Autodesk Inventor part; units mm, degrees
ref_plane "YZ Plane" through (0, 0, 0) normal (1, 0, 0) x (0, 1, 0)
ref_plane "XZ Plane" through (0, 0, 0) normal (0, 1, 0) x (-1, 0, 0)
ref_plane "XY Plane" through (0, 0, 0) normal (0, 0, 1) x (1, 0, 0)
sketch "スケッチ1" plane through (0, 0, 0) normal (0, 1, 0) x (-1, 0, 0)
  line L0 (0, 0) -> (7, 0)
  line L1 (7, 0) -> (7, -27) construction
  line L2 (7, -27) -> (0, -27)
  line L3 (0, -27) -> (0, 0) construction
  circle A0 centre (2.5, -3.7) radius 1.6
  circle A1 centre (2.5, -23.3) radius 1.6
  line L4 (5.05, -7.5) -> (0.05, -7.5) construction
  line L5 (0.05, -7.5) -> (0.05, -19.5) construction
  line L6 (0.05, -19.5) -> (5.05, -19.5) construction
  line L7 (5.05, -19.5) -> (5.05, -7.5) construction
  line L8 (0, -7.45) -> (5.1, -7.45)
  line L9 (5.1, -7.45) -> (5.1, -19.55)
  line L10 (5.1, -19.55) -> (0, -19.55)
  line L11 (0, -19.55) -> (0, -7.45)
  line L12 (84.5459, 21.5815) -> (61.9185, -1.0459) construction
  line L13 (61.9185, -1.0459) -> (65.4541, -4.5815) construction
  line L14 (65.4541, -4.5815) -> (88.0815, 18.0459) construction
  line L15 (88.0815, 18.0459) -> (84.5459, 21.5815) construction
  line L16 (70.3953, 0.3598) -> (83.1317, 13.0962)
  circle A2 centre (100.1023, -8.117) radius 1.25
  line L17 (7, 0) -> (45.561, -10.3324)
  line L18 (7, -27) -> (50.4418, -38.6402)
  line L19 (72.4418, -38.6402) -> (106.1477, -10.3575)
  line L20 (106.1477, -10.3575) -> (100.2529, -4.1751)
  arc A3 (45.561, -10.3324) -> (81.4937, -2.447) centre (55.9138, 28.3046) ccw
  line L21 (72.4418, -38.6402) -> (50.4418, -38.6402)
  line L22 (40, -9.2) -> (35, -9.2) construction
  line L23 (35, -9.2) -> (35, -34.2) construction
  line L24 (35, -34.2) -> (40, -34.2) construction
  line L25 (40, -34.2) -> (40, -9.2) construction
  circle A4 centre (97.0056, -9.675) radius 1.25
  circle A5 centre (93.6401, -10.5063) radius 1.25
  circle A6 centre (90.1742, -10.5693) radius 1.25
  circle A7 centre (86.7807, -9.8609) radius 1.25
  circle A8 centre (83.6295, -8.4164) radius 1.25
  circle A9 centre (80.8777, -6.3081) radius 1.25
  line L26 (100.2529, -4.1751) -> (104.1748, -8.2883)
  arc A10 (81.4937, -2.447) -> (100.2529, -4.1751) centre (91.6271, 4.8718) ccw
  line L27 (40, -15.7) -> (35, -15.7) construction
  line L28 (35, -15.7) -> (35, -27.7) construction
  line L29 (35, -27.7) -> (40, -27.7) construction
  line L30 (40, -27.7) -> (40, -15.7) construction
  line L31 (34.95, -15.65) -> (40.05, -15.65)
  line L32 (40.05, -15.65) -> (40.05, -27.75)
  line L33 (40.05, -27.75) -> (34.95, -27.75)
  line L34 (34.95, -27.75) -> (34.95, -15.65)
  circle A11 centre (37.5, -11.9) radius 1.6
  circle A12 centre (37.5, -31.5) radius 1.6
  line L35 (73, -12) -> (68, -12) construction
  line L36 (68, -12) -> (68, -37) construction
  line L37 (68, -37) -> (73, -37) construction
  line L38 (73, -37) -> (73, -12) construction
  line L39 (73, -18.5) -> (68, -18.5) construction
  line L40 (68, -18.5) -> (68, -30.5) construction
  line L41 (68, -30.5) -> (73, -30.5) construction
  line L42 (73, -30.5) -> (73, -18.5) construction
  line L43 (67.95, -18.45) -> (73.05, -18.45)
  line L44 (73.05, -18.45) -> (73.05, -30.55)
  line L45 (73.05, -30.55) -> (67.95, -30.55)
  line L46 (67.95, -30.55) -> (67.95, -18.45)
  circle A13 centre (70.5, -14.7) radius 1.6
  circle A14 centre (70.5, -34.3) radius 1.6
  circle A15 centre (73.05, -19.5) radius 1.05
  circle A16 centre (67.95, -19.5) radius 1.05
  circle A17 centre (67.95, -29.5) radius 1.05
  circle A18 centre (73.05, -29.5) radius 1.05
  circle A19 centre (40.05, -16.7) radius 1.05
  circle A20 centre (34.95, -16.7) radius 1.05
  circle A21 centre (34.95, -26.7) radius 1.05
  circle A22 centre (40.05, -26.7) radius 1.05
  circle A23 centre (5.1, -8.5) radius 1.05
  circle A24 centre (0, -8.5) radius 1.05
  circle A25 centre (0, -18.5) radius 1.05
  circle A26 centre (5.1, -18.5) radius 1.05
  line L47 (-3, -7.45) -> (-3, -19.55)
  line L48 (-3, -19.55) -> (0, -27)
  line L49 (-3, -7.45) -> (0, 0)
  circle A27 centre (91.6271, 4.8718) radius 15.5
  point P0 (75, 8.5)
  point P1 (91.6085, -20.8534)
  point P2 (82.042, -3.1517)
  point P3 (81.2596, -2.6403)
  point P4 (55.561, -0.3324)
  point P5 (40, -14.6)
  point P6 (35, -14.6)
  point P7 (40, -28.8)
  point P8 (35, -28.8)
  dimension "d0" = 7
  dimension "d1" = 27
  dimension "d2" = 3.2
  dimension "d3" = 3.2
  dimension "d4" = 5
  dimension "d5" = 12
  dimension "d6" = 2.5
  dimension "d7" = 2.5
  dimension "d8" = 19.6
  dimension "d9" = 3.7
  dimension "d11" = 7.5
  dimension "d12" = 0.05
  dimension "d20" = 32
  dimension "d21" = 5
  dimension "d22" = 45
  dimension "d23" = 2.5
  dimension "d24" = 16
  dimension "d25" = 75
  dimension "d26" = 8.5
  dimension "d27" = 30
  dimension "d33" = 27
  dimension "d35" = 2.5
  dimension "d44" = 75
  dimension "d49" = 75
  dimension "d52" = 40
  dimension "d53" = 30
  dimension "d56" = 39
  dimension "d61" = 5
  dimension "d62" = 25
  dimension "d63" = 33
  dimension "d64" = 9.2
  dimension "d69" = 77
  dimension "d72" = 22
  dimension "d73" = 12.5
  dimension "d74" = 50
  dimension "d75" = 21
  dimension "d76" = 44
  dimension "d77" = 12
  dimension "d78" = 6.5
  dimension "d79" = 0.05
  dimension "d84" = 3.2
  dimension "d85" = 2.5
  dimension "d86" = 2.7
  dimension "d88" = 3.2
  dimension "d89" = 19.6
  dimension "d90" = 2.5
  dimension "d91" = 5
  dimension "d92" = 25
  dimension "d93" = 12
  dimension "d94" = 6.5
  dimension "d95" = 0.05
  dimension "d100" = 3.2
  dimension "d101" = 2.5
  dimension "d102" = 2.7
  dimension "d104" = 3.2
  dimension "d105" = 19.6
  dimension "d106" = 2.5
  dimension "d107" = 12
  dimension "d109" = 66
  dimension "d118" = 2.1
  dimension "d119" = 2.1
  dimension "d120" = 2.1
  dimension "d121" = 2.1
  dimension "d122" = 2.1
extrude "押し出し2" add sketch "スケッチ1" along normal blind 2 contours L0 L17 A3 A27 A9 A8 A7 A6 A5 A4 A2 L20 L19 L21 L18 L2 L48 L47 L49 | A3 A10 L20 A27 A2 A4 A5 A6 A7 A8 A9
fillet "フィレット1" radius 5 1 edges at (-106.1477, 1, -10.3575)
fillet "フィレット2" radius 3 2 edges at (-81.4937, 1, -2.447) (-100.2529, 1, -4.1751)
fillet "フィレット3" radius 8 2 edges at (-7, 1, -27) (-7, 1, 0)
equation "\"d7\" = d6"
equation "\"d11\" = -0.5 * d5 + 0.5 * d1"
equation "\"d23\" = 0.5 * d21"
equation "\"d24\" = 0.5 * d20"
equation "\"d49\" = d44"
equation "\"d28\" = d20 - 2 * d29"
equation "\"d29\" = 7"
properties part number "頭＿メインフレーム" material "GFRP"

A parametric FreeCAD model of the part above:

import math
import FreeCAD as App
import Part
import Sketcher
from FreeCAD import Vector
Q = App.Units.Quantity


def edges_at(feature, points):
    """Names of the edges that pass closest to the given points."""
    edges = feature.Shape.Edges
    near = lambda p: min(range(len(edges)), key=lambda i: edges[i].distToShape(Part.Vertex(*p))[0])
    return sorted({f"Edge{near(p) + 1}" for p in points})

doc = App.newDocument("Part")
body = doc.addObject("PartDesign::Body", "Body")

# Sketch on XZ plane
sketch1 = body.newObject("Sketcher::SketchObject", "Sketch")
sketch1.AttachmentSupport = (doc.getObject("XZ_Plane"), [""])
sketch1.MapMode = "FlatFace"
sketch1.addGeometry([
    Part.LineSegment(Vector(-7, 0, 0), Vector(0, 0, 0)),  # 0
    Part.LineSegment(Vector(0, 0, 0), Vector(3, -7.45, 0)),  # 1
    Part.LineSegment(Vector(3, -7.45, 0), Vector(3, -19.55, 0)),  # 2
    Part.LineSegment(Vector(3, -19.55, 0), Vector(0, -27, 0)),  # 3
    Part.LineSegment(Vector(0, -27, 0), Vector(-7, -27, 0)),  # 4
    Part.LineSegment(Vector(-7, -27, 0), Vector(-50.4418, -38.6402, 0)),  # 5
    Part.LineSegment(Vector(-50.4418, -38.6402, 0), Vector(-72.4418, -38.6402, 0)),  # 6
    Part.LineSegment(Vector(-72.4418, -38.6402, 0), Vector(-106.1477, -10.3575, 0)),  # 7
    Part.LineSegment(Vector(-106.1477, -10.3575, 0), Vector(-100.2529, -4.1751, 0)),  # 8
    Part.ArcOfCircle(Part.Circle(Vector(-91.6271, 4.8718, 0), Vector(0, 0, 1), 12.500025), math.radians(-133.635031), math.radians(-35.83852)),  # 9
    Part.ArcOfCircle(Part.Circle(Vector(-55.9138, 28.3046, 0), Vector(0, 0, 1), 39.999978), math.radians(-129.754476), math.radians(-74.999935)),  # 10
    Part.LineSegment(Vector(-45.561, -10.3324, 0), Vector(-7, 0, 0)),  # 11
    Part.Circle(Vector(-80.8777, -6.3081, 0), Vector(0, 0, 1), 1.25),  # 12
    Part.Circle(Vector(-83.6295, -8.4164, 0), Vector(0, 0, 1), 1.25),  # 13
    Part.Circle(Vector(-86.7807, -9.8609, 0), Vector(0, 0, 1), 1.25),  # 14
    Part.Circle(Vector(-90.1742, -10.5693, 0), Vector(0, 0, 1), 1.25),  # 15
    Part.Circle(Vector(-93.6401, -10.5063, 0), Vector(0, 0, 1), 1.25),  # 16
    Part.Circle(Vector(-97.0056, -9.675, 0), Vector(0, 0, 1), 1.25),  # 17
    Part.Circle(Vector(-100.1023, -8.117, 0), Vector(0, 0, 1), 1.25),  # 18
    Part.Circle(Vector(-37.5, -31.5, 0), Vector(0, 0, 1), 1.6),  # 19
    Part.Circle(Vector(-2.5, -23.3, 0), Vector(0, 0, 1), 1.6),  # 20
    Part.ArcOfCircle(Part.Circle(Vector(0, -8.5, 0), Vector(0, 0, 1), 1.05), math.radians(-90), math.radians(90)),  # 21
    Part.LineSegment(Vector(0, -7.45, 0), Vector(-5.1, -7.45, 0)),  # 22
    Part.ArcOfCircle(Part.Circle(Vector(-5.1, -8.5, 0), Vector(0, 0, 1), 1.05), math.radians(90), math.radians(270)),  # 23
    Part.LineSegment(Vector(-5.1, -9.55, 0), Vector(-5.1, -17.45, 0)),  # 24
    Part.ArcOfCircle(Part.Circle(Vector(-5.1, -18.5, 0), Vector(0, 0, 1), 1.05), math.radians(90), math.radians(270)),  # 25
    Part.LineSegment(Vector(-5.1, -19.55, 0), Vector(0, -19.55, 0)),  # 26
    Part.ArcOfCircle(Part.Circle(Vector(0, -18.5, 0), Vector(0, 0, 1), 1.05), math.radians(-90), math.radians(90)),  # 27
    Part.LineSegment(Vector(0, -17.45, 0), Vector(0, -9.55, 0)),  # 28
    Part.ArcOfCircle(Part.Circle(Vector(-34.95, -16.7, 0), Vector(0, 0, 1), 1.05), math.radians(-90), math.radians(90)),  # 29
    Part.LineSegment(Vector(-34.95, -15.65, 0), Vector(-40.05, -15.65, 0)),  # 30
    Part.ArcOfCircle(Part.Circle(Vector(-40.05, -16.7, 0), Vector(0, 0, 1), 1.05), math.radians(90), math.radians(270)),  # 31
    Part.LineSegment(Vector(-40.05, -17.75, 0), Vector(-40.05, -25.65, 0)),  # 32
    Part.ArcOfCircle(Part.Circle(Vector(-40.05, -26.7, 0), Vector(0, 0, 1), 1.05), math.radians(90), math.radians(270)),  # 33
    Part.LineSegment(Vector(-40.05, -27.75, 0), Vector(-34.95, -27.75, 0)),  # 34
    Part.ArcOfCircle(Part.Circle(Vector(-34.95, -26.7, 0), Vector(0, 0, 1), 1.05), math.radians(-90), math.radians(90)),  # 35
    Part.LineSegment(Vector(-34.95, -25.65, 0), Vector(-34.95, -17.75, 0)),  # 36
    Part.Circle(Vector(-37.5, -11.9, 0), Vector(0, 0, 1), 1.6),  # 37
    Part.Circle(Vector(-70.5, -34.3, 0), Vector(0, 0, 1), 1.6),  # 38
    Part.ArcOfCircle(Part.Circle(Vector(-67.95, -19.5, 0), Vector(0, 0, 1), 1.05), math.radians(-90), math.radians(90)),  # 39
    Part.LineSegment(Vector(-67.95, -18.45, 0), Vector(-73.05, -18.45, 0)),  # 40
    Part.ArcOfCircle(Part.Circle(Vector(-73.05, -19.5, 0), Vector(0, 0, 1), 1.05), math.radians(90), math.radians(270)),  # 41
    Part.LineSegment(Vector(-73.05, -20.55, 0), Vector(-73.05, -28.45, 0)),  # 42
    Part.ArcOfCircle(Part.Circle(Vector(-73.05, -29.5, 0), Vector(0, 0, 1), 1.05), math.radians(90), math.radians(270)),  # 43
    Part.LineSegment(Vector(-73.05, -30.55, 0), Vector(-67.95, -30.55, 0)),  # 44
    Part.ArcOfCircle(Part.Circle(Vector(-67.95, -29.5, 0), Vector(0, 0, 1), 1.05), math.radians(-90), math.radians(90)),  # 45
    Part.LineSegment(Vector(-67.95, -28.45, 0), Vector(-67.95, -20.55, 0)),  # 46
    Part.Circle(Vector(-70.5, -14.7, 0), Vector(0, 0, 1), 1.6),  # 47
    Part.Circle(Vector(-2.5, -3.7, 0), Vector(0, 0, 1), 1.6),  # 48
], False)
sketch1.addConstraint([
    Sketcher.Constraint("Coincident", 0, 2, 1, 1),
    Sketcher.Constraint("Coincident", 1, 2, 2, 1),
    Sketcher.Constraint("Coincident", 2, 2, 3, 1),
    Sketcher.Constraint("Coincident", 3, 2, 4, 1),
    Sketcher.Constraint("Coincident", 4, 2, 5, 1),
    Sketcher.Constraint("Coincident", 5, 2, 6, 1),
    Sketcher.Constraint("Coincident", 6, 2, 7, 1),
    Sketcher.Constraint("Coincident", 7, 2, 8, 1),
    Sketcher.Constraint("Coincident", 8, 2, 9, 1),
    Sketcher.Constraint("Coincident", 9, 2, 10, 1),
    Sketcher.Constraint("Tangent", 10, 2, 11, 1),
    Sketcher.Constraint("Coincident", 11, 2, 0, 1),
    Sketcher.Constraint("Tangent", 21, 2, 22, 1),
    Sketcher.Constraint("Tangent", 22, 2, 23, 1),
    Sketcher.Constraint("Coincident", 23, 2, 24, 1),
    Sketcher.Constraint("Coincident", 24, 2, 25, 1),
    Sketcher.Constraint("Tangent", 25, 2, 26, 1),
    Sketcher.Constraint("Tangent", 26, 2, 27, 1),
    Sketcher.Constraint("Coincident", 27, 2, 28, 1),
    Sketcher.Constraint("Coincident", 28, 2, 21, 1),
    Sketcher.Constraint("Tangent", 29, 2, 30, 1),
    Sketcher.Constraint("Tangent", 30, 2, 31, 1),
    Sketcher.Constraint("Coincident", 31, 2, 32, 1),
    Sketcher.Constraint("Coincident", 32, 2, 33, 1),
    Sketcher.Constraint("Tangent", 33, 2, 34, 1),
    Sketcher.Constraint("Tangent", 34, 2, 35, 1),
    Sketcher.Constraint("Coincident", 35, 2, 36, 1),
    Sketcher.Constraint("Coincident", 36, 2, 29, 1),
    Sketcher.Constraint("Tangent", 39, 2, 40, 1),
    Sketcher.Constraint("Tangent", 40, 2, 41, 1),
    Sketcher.Constraint("Coincident", 41, 2, 42, 1),
    Sketcher.Constraint("Coincident", 42, 2, 43, 1),
    Sketcher.Constraint("Tangent", 43, 2, 44, 1),
    Sketcher.Constraint("Tangent", 44, 2, 45, 1),
    Sketcher.Constraint("Coincident", 45, 2, 46, 1),
    Sketcher.Constraint("Coincident", 46, 2, 39, 1),
    Sketcher.Constraint("Horizontal", 0),
    Sketcher.Constraint("Vertical", 2),
    Sketcher.Constraint("Horizontal", 4),
    Sketcher.Constraint("Horizontal", 6),
    Sketcher.Constraint("Horizontal", 22),
    Sketcher.Constraint("Vertical", 24),
    Sketcher.Constraint("Horizontal", 26),
    Sketcher.Constraint("Vertical", 28),
    Sketcher.Constraint("Horizontal", 30),
    Sketcher.Constraint("Vertical", 32),
    Sketcher.Constraint("Horizontal", 34),
    Sketcher.Constraint("Vertical", 36),
    Sketcher.Constraint("Horizontal", 40),
    Sketcher.Constraint("Vertical", 42),
    Sketcher.Constraint("Horizontal", 44),
    Sketcher.Constraint("Vertical", 46),
    Sketcher.Constraint("Coincident", 0, 2, -1, 1),
    Sketcher.Constraint("Equal", 12, 13),
    Sketcher.Constraint("Equal", 13, 14),
    Sketcher.Constraint("Equal", 14, 15),
    Sketcher.Constraint("Equal", 15, 16),
    Sketcher.Constraint("Equal", 16, 17),
    Sketcher.Constraint("Equal", 17, 18),
    Sketcher.Constraint("Equal", 19, 20),
    Sketcher.Constraint("Equal", 21, 23),
    Sketcher.Constraint("Equal", 23, 25),
    Sketcher.Constraint("Equal", 25, 27),
    Sketcher.Constraint("Equal", 27, 29),
    Sketcher.Constraint("Equal", 29, 31),
    Sketcher.Constraint("Equal", 31, 33),
    Sketcher.Constraint("Equal", 33, 35),
    Sketcher.Constraint("Equal", 20, 37),
    Sketcher.Constraint("Equal", 37, 38),
    Sketcher.Constraint("Equal", 35, 39),
    Sketcher.Constraint("Equal", 39, 41),
    Sketcher.Constraint("Equal", 41, 43),
    Sketcher.Constraint("Equal", 43, 45),
    Sketcher.Constraint("Equal", 38, 47),
    Sketcher.Constraint("Equal", 47, 48),
    Sketcher.Constraint("PointOnObject", 21, 3, -2),
    Sketcher.Constraint("PointOnObject", 27, 3, -2),
    Sketcher.Constraint("PointOnObject", 3, 2, -2),
    Sketcher.Constraint("PointOnObject", 27, 2, -2),
    Sketcher.Constraint("Parallel", 5, 11),
    Sketcher.Constraint("Horizontal", 1, 2, 21, 2),
    Sketcher.Constraint("Horizontal", 2, 2, 25, 2),
    Sketcher.Constraint("Vertical", 23, 3, 25, 3),
    Sketcher.Constraint("Vertical", 31, 3, 33, 3),
    Sketcher.Constraint("Vertical", 29, 3, 35, 3),
    Sketcher.Constraint("Vertical", 19, 3, 37, 3),
    Sketcher.Constraint("Vertical", 41, 3, 43, 3),
    Sketcher.Constraint("Vertical", 39, 3, 45, 3),
    Sketcher.Constraint("Vertical", 38, 3, 47, 3),
    Sketcher.Constraint("Vertical", 20, 3, 48, 3),
    Sketcher.Constraint("Vertical", 4, 2, 11, 2),
    Sketcher.Constraint("Vertical", 22, 2, 23, 2),
    Sketcher.Constraint("Vertical", 30, 2, 31, 2),
    Sketcher.Constraint("Vertical", 34, 2, 35, 2),
    Sketcher.Constraint("Vertical", 40, 2, 41, 2),
    Sketcher.Constraint("Vertical", 44, 2, 45, 2),
    Sketcher.Constraint("Equal", 26, 30),
    Sketcher.Constraint("Equal", 34, 40),
    Sketcher.Constraint("Equal", 28, 32),
    Sketcher.Constraint("Equal", 36, 42),
    Sketcher.Constraint("Equal", 1, 3),
    Sketcher.Constraint("Radius", 10, 40.0),
    Sketcher.Constraint("Diameter", 12, 2.5),
    Sketcher.Constraint("Diameter", 19, 3.2),
    Sketcher.Constraint("Radius", 9, 12.5),
    Sketcher.Constraint("DistanceX", 0, 1, 0, 2, 7.0),
    Sketcher.Constraint("DistanceX", 6, 2, 6, 1, 22.0),
    Sketcher.Constraint("Radius", 21, 1.05),
    Sketcher.Constraint("Distance", 7, 44.0),
    Sketcher.Constraint("DistanceY", 3, 2, -1, 1, 27.0),
    Sketcher.Constraint("DistanceX", 20, 3, -1, 1, 2.5),
    Sketcher.Constraint("DistanceY", 21, 3, -1, 1, 8.5),
    Sketcher.Constraint("DistanceY", 48, 3, -1, 1, 3.7),
    Sketcher.Constraint("Angle", 5, Q("-165 deg")),
    Sketcher.Constraint("Angle", 7, Q("140 deg")),
    Sketcher.Constraint("DistanceX", 22, 2, 22, 1, 5.1),
    Sketcher.Constraint("DistanceX", -1, 1, 1, 2, 3.0),
    Sketcher.Constraint("DistanceX", 19, 3, -1, 1, 37.5),
    Sketcher.Constraint("DistanceY", 19, 3, -1, 1, 31.5),
    Sketcher.Constraint("DistanceY", 20, 3, -1, 1, 23.3),
    Sketcher.Constraint("DistanceY", 29, 3, -1, 1, 16.7),
    Sketcher.Constraint("DistanceY", 37, 3, -1, 1, 11.9),
    Sketcher.Constraint("DistanceX", 38, 3, -1, 1, 70.5),
    Sketcher.Constraint("DistanceY", 38, 3, -1, 1, 34.3),
    Sketcher.Constraint("DistanceY", 39, 3, -1, 1, 19.5),
    Sketcher.Constraint("DistanceY", 47, 3, -1, 1, 14.7),
    Sketcher.Constraint("DistanceX", 16, 3, -1, 1, 93.64),
    Sketcher.Constraint("DistanceX", 29, 3, -1, 1, 34.95),
    Sketcher.Constraint("DistanceX", 39, 3, -1, 1, 67.95),
    Sketcher.Constraint("DistanceX", 9, 3, -1, 1, 91.627),
    Sketcher.Constraint("DistanceY", 12, 3, -1, 1, 6.308),
    Sketcher.Constraint("DistanceY", 14, 3, -1, 1, 9.861),
    Sketcher.Constraint("DistanceY", 17, 3, -1, 1, 9.675),
    Sketcher.Constraint("DistanceY", 18, 3, -1, 1, 8.117),
    Sketcher.Constraint("DistanceX", 8, 2, -1, 1, 100.253),
    Sketcher.Constraint("DistanceY", 8, 2, -1, 1, 4.175),
    Sketcher.Constraint("DistanceY", 9, 2, -1, 1, 2.447),
    Sketcher.Constraint("Distance", 5, 44.9743),
    Sketcher.Constraint("DistanceX", 12, 3, -1, 1, 80.8777),
    Sketcher.Constraint("DistanceX", 13, 3, -1, 1, 83.6295),
    Sketcher.Constraint("DistanceY", 13, 3, -1, 1, 8.4164),
    Sketcher.Constraint("DistanceX", 14, 3, -1, 1, 86.7807),
    Sketcher.Constraint("DistanceX", 15, 3, -1, 1, 90.1742),
    Sketcher.Constraint("DistanceY", 15, 3, -1, 1, 10.5693),
    Sketcher.Constraint("DistanceY", 16, 3, -1, 1, 10.5063),
    Sketcher.Constraint("DistanceX", 17, 3, -1, 1, 97.0056),
    Sketcher.Constraint("DistanceX", 18, 3, -1, 1, 100.1023),
])
pad1 = body.newObject("PartDesign::Pad", "Pad")
pad1.Profile = sketch1
pad1.Length = 2
pad1.Reversed = True
doc.recompute()

fillet = body.newObject("PartDesign::Fillet", "Fillet")
fillet.Base = (pad1, edges_at(pad1, [(-106.148, 1, -10.357)]))
fillet.Radius = 5
doc.recompute()

fillet2 = body.newObject("PartDesign::Fillet", "Fillet001")
fillet2.Base = (fillet, edges_at(fillet, [(-81.494, 1, -2.447), (-100.253, 1, -4.175)]))
fillet2.Radius = 3
doc.recompute()

fillet3 = body.newObject("PartDesign::Fillet", "Fillet002")
fillet3.Base = (fillet2, edges_at(fillet2, [(-7, 1, -27), (-7, 1, 0)]))
fillet3.Radius = 8

doc.recompute()
